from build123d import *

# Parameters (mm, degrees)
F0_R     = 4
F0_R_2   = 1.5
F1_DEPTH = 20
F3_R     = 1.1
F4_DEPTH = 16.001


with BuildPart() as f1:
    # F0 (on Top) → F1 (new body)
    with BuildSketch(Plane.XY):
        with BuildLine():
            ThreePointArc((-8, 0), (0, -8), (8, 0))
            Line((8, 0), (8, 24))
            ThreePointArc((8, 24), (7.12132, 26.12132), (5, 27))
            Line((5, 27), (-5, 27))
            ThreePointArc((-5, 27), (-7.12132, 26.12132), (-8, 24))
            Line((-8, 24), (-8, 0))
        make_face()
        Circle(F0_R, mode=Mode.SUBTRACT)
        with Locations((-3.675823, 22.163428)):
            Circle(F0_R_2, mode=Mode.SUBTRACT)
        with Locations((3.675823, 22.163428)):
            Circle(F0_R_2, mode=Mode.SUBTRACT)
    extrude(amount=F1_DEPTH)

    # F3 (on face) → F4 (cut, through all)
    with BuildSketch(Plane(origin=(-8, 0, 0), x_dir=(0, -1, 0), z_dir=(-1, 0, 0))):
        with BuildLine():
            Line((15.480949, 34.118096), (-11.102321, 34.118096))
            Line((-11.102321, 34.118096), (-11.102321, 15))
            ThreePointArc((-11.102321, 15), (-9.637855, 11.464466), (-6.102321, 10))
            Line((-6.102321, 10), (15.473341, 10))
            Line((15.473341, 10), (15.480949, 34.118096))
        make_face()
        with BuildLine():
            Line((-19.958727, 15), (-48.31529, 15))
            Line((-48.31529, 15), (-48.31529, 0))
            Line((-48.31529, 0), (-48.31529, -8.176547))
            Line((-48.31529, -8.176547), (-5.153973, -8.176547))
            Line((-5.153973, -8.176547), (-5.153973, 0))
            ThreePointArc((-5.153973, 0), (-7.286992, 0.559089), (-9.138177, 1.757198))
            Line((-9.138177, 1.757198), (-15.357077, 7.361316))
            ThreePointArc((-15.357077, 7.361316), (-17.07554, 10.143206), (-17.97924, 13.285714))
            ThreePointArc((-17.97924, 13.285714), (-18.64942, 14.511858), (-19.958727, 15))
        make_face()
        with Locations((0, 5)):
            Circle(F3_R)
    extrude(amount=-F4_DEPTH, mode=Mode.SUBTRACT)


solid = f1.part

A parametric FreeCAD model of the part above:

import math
import FreeCAD as App
import Part
import Sketcher
Q = App.Units.Quantity

doc = App.newDocument("Part")
body = doc.addObject("PartDesign::Body", "Body")

sketch1 = body.newObject("Sketcher::SketchObject", "Sketch")
sketch1.AttachmentSupport = (doc.getObject("XY_Plane"), [""])
sketch1.MapMode = "FlatFace"
sketch1.addGeometry(Part.ArcOfCircle(Part.Circle(App.Vector(0, 0, 0), App.Vector(0, 0, 1), 8), math.radians(180), math.radians(360)), False)
sketch1.addGeometry(Part.LineSegment(App.Vector(8, 0, 0), App.Vector(8, 24, 0)), False)
sketch1.addGeometry(Part.ArcOfCircle(Part.Circle(App.Vector(5, 24, 0), App.Vector(0, 0, 1), 3), math.radians(0), math.radians(90)), False)
sketch1.addGeometry(Part.LineSegment(App.Vector(5, 27, 0), App.Vector(-5, 27, 0)), False)
sketch1.addGeometry(Part.ArcOfCircle(Part.Circle(App.Vector(-5, 24, 0), App.Vector(0, 0, 1), 3), math.radians(90), math.radians(180)), False)
sketch1.addGeometry(Part.LineSegment(App.Vector(-8, 24, 0), App.Vector(-8, 0, 0)), False)
sketch1.addGeometry(Part.Circle(App.Vector(0, 0, 0), App.Vector(0, 0, 1), 4), False)
sketch1.addGeometry(Part.Circle(App.Vector(-3.7, 22.2, 0), App.Vector(0, 0, 1), 1.5), False)
sketch1.addGeometry(Part.Circle(App.Vector(3.7, 22.2, 0), App.Vector(0, 0, 1), 1.5), False)
sketch1.addConstraint(Sketcher.Constraint("Tangent", 0, 2, 1, 1))
sketch1.addConstraint(Sketcher.Constraint("Tangent", 1, 2, 2, 1))
sketch1.addConstraint(Sketcher.Constraint("Tangent", 2, 2, 3, 1))
sketch1.addConstraint(Sketcher.Constraint("Tangent", 3, 2, 4, 1))
sketch1.addConstraint(Sketcher.Constraint("Tangent", 4, 2, 5, 1))
sketch1.addConstraint(Sketcher.Constraint("Tangent", 5, 2, 0, 1))
sketch1.addConstraint(Sketcher.Constraint("Vertical", 1))
sketch1.addConstraint(Sketcher.Constraint("Horizontal", 3))
sketch1.addConstraint(Sketcher.Constraint("Vertical", 5))
sketch1.addConstraint(Sketcher.Constraint("Coincident", 0, 3, -1, 1))
sketch1.addConstraint(Sketcher.Constraint("Coincident", 6, 3, -1, 1))
sketch1.addConstraint(Sketcher.Constraint("Equal", 2, 4))
sketch1.addConstraint(Sketcher.Constraint("Equal", 7, 8))
sketch1.addConstraint(Sketcher.Constraint("Symmetric", 7, 3, 8, 3, -2))
sketch1.addConstraint(Sketcher.Constraint("Diameter", 6, Q("8 mm")))
sketch1.addConstraint(Sketcher.Constraint("Diameter", 7, Q("3 mm")))
sketch1.addConstraint(Sketcher.Constraint("Radius", 0, Q("8 mm")))
sketch1.addConstraint(Sketcher.Constraint("Radius", 2, Q("3.000001 mm")))
sketch1.addConstraint(Sketcher.Constraint("DistanceY", 1, 1, 1, 2, Q("24 mm")))
sketch1.addConstraint(Sketcher.Constraint("DistanceY", 7, 3, 4, 3, Q("1.836571 mm")))
sketch1.addConstraint(Sketcher.Constraint("DistanceX", 7, 3, 2, 3, Q("8.675822 mm")))
pad1 = body.newObject("PartDesign::Pad", "Pad")
pad1.Profile = sketch1
pad1.Length = 20

sketch2 = body.newObject("Sketcher::SketchObject", "Sketch001")
sketch2.AttachmentSupport = (doc.getObject("YZ_Plane"), [""])
sketch2.MapMode = "FlatFace"
sketch2.AttachmentOffset = App.Placement(App.Vector(0, 0, -8), App.Rotation())
sketch2.addGeometry(Part.LineSegment(App.Vector(-15.480949, 34.118096, 0), App.Vector(11.102321, 34.118096, 0)), False)
sketch2.addGeometry(Part.LineSegment(App.Vector(11.102321, 34.118096, 0), App.Vector(11.102321, 15, 0)), False)
sketch2.addGeometry(Part.ArcOfCircle(Part.Circle(App.Vector(6.102321, 15, 0), App.Vector(0, 0, 1), 5), math.radians(-90.000004), math.radians(0.000004)), False)
sketch2.addGeometry(Part.LineSegment(App.Vector(6.102321, 10, 0), App.Vector(-15.473341, 10, 0)), False)
sketch2.addGeometry(Part.LineSegment(App.Vector(-15.473341, 10, 0), App.Vector(-15.480949, 34.118096, 0)), False)
sketch2.addGeometry(Part.LineSegment(App.Vector(19.958727, 15, 0), App.Vector(48.31529, 15, 0)), False)
sketch2.addGeometry(Part.LineSegment(App.Vector(48.31529, 15, 0), App.Vector(48.31529, -8.176547, 0)), False)
sketch2.addGeometry(Part.LineSegment(App.Vector(48.31529, -8.176547, 0), App.Vector(5.153973, -8.176547, 0)), False)
sketch2.addGeometry(Part.LineSegment(App.Vector(5.153973, -8.176547, 0), App.Vector(5.153973, 0, 0)), False)
sketch2.addGeometry(Part.ArcOfCircle(Part.Circle(App.Vector(4.47756, 6.929089, 0), App.Vector(0, 0, 1), 6.962026), math.radians(-84.424489), math.radians(-47.976603)), False)
sketch2.addGeometry(Part.LineSegment(App.Vector(9.138177, 1.757198, 0), App.Vector(15.357077, 7.361316, 0)), False)
sketch2.addGeometry(Part.ArcOfCircle(Part.Circle(App.Vector(6.102312, 15.000002, 0), App.Vector(0, 0, 1), 12.000009), math.radians(-39.53554), math.radians(-8.213218)), False)
sketch2.addGeometry(Part.ArcOfCircle(Part.Circle(App.Vector(19.958728, 12.999999, 0), App.Vector(0, 0, 1), 2.000001), math.radians(90.000018), math.radians(171.786771)), False)
sketch2.addGeometry(Part.Circle(App.Vector(0, 5, 0), App.Vector(0, 0, 1), 1.1), False)
sketch2.addConstraint(Sketcher.Constraint("Coincident", 0, 2, 1, 1))
sketch2.addConstraint(Sketcher.Constraint("Coincident", 1, 2, 2, 2))
sketch2.addConstraint(Sketcher.Constraint("Coincident", 2, 1, 3, 1))
sketch2.addConstraint(Sketcher.Constraint("Coincident", 3, 2, 4, 1))
sketch2.addConstraint(Sketcher.Constraint("Coincident", 4, 2, 0, 1))
sketch2.addConstraint(Sketcher.Constraint("Coincident", 5, 2, 6, 1))
sketch2.addConstraint(Sketcher.Constraint("Coincident", 6, 2, 7, 1))
sketch2.addConstraint(Sketcher.Constraint("Coincident", 7, 2, 8, 1))
sketch2.addConstraint(Sketcher.Constraint("Coincident", 8, 2, 9, 1))
sketch2.addConstraint(Sketcher.Constraint("Coincident", 9, 2, 10, 1))
sketch2.addConstraint(Sketcher.Constraint("Coincident", 10, 2, 11, 1))
sketch2.addConstraint(Sketcher.Constraint("Coincident", 11, 2, 12, 2))
sketch2.addConstraint(Sketcher.Constraint("Coincident", 12, 1, 5, 1))
sketch2.addConstraint(Sketcher.Constraint("Horizontal", 0))
sketch2.addConstraint(Sketcher.Constraint("Vertical", 1))
sketch2.addConstraint(Sketcher.Constraint("Horizontal", 3))
sketch2.addConstraint(Sketcher.Constraint("Horizontal", 5))
sketch2.addConstraint(Sketcher.Constraint("Vertical", 6))
sketch2.addConstraint(Sketcher.Constraint("Horizontal", 7))
sketch2.addConstraint(Sketcher.Constraint("Vertical", 8))
sketch2.addConstraint(Sketcher.Constraint("PointOnObject", 13, 3, -2))
sketch2.addConstraint(Sketcher.Constraint("PointOnObject", 8, 2, -1))
sketch2.addConstraint(Sketcher.Constraint("Radius", 2, Q("5 mm")))
sketch2.addConstraint(Sketcher.Constraint("Radius", 12, Q("2.000001 mm")))
sketch2.addConstraint(Sketcher.Constraint("Diameter", 13, Q("2.2 mm")))
sketch2.addConstraint(Sketcher.Constraint("DistanceY", -1, 1, 2, 3, Q("15 mm")))
sketch2.addConstraint(Sketcher.Constraint("DistanceY", -1, 1, 12, 3, Q("12.999999 mm")))
sketch2.addConstraint(Sketcher.Constraint("DistanceY", -1, 1, 13, 3, Q("5 mm")))
sketch2.addConstraint(Sketcher.Constraint("DistanceY", -1, 1, 1, 2, Q("15 mm")))
sketch2.addConstraint(Sketcher.Constraint("DistanceX", 2, 1, 1, 2, Q("5 mm")))
sketch2.addConstraint(Sketcher.Constraint("Radius", 11, Q("12.000009 mm")))
sketch2.addConstraint(Sketcher.Constraint("Radius", 9, Q("6.962026 mm")))
sketch2.addConstraint(Sketcher.Constraint("DistanceX", 0, 1, 0, 2, Q("26.58327 mm")))
sketch2.addConstraint(Sketcher.Constraint("DistanceY", -1, 1, 9, 2, Q("1.757198 mm")))
sketch2.addConstraint(Sketcher.Constraint("DistanceX", 3, 2, 9, 3, Q("19.950901 mm")))
sketch2.addConstraint(Sketcher.Constraint("DistanceX", 9, 2, 10, 2, Q("6.2189 mm")))
sketch2.addConstraint(Sketcher.Constraint("DistanceY", 10, 2, 11, 2, Q("5.924398 mm")))
sketch2.addConstraint(Sketcher.Constraint("Distance", 10, Q("8.371431 mm")))
sketch2.addConstraint(Sketcher.Constraint("DistanceX", 3, 2, 3, 1, Q("21.575662 mm")))
sketch2.addConstraint(Sketcher.Constraint("DistanceX", 5, 1, 5, 2, Q("28.356563 mm")))
sketch2.addConstraint(Sketcher.Constraint("DistanceX", 7, 2, 7, 1, Q("43.161317 mm")))
sketch2.addConstraint(Sketcher.Constraint("DistanceY", 1, 2, 1, 1, Q("19.118096 mm")))
sketch2.addConstraint(Sketcher.Constraint("DistanceY", 6, 2, 6, 1, Q("23.176547 mm")))
sketch2.addConstraint(Sketcher.Constraint("DistanceX", -1, 1, 2, 3, Q("6.102321 mm")))
sketch2.addConstraint(Sketcher.Constraint("DistanceY", -1, 1, 9, 3, Q("6.929089 mm")))
sketch2.addConstraint(Sketcher.Constraint("DistanceX", -1, 1, 11, 3, Q("6.102312 mm")))
pocket1 = body.newObject("PartDesign::Pocket", "Pocket")
pocket1.Profile = sketch2
pocket1.Type = "ThroughAll"
pocket1.Reversed = True

doc.recompute()
